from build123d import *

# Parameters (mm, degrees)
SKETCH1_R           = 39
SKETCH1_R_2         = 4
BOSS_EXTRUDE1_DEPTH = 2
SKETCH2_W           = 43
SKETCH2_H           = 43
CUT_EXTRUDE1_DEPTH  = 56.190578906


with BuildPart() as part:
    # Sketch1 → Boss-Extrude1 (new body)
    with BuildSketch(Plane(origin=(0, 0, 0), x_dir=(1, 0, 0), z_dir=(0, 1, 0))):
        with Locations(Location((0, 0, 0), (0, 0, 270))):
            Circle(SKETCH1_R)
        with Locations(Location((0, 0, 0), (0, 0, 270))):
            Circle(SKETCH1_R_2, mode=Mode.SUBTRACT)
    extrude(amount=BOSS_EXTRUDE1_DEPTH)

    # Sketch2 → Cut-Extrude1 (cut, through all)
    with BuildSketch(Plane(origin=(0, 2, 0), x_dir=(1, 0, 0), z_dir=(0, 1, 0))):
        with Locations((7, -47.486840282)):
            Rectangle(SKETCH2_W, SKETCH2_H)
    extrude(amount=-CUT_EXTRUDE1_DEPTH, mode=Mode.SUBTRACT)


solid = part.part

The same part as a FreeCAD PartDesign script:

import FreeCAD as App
import Part
import Sketcher

V = App.Vector
Q = App.Units.Quantity

doc = App.newDocument("Part")
body = doc.addObject("PartDesign::Body", "Body")

sketch1 = doc.addObject("Sketcher::SketchObject", "Sketch")
body.addObject(sketch1)
sketch1.AttachmentSupport = (doc.XZ_Plane, [""])
sketch1.MapMode = "FlatFace"
sketch1.addGeometry(Part.Circle(V(0, 0, 0), V(0, 0, 1), 39), False)
sketch1.addGeometry(Part.Circle(V(0, 0, 0), V(0, 0, 1), 4), False)
sketch1.addConstraint(Sketcher.Constraint("Coincident", 0, 3, -1, 1))
sketch1.addConstraint(Sketcher.Constraint("Coincident", 1, 3, -1, 1))
sketch1.addConstraint(Sketcher.Constraint("Diameter", 0, Q("78 mm")))
sketch1.addConstraint(Sketcher.Constraint("Diameter", 1, Q("8 mm")))
pad1 = doc.addObject("PartDesign::Pad", "Pad")
body.addObject(pad1)
pad1.Profile = sketch1
pad1.Length = 2
pad1.Reversed = True

sketch2 = doc.addObject("Sketcher::SketchObject", "Sketch001")
body.addObject(sketch2)
sketch2.AttachmentSupport = (doc.XZ_Plane, [""])
sketch2.MapMode = "FlatFace"
sketch2.AttachmentOffset = App.Placement(V(0, 0, -2), App.Rotation())
sketch2.addGeometry(Part.LineSegment(V(-14, 26, 0), V(-14, 69, 0)), False)
sketch2.addGeometry(Part.LineSegment(V(-14, 69, 0), V(28, 69, 0)), False)
sketch2.addGeometry(Part.LineSegment(V(28, 69, 0), V(28, 26, 0)), False)
sketch2.addGeometry(Part.LineSegment(V(28, 26, 0), V(-14, 26, 0)), False)
sketch2.addConstraint(Sketcher.Constraint("Coincident", 0, 2, 1, 1))
sketch2.addConstraint(Sketcher.Constraint("Coincident", 1, 2, 2, 1))
sketch2.addConstraint(Sketcher.Constraint("Coincident", 2, 2, 3, 1))
sketch2.addConstraint(Sketcher.Constraint("Coincident", 3, 2, 0, 1))
sketch2.addConstraint(Sketcher.Constraint("Vertical", 0))
sketch2.addConstraint(Sketcher.Constraint("Horizontal", 1))
sketch2.addConstraint(Sketcher.Constraint("Vertical", 2))
sketch2.addConstraint(Sketcher.Constraint("Horizontal", 3))
sketch2.addConstraint(Sketcher.Constraint("Equal", 3, 0))
sketch2.addConstraint(Sketcher.Constraint("DistanceX", 1, 1, 1, 2, Q("43 mm")))
sketch2.addConstraint(Sketcher.Constraint("DistanceX", 0, 2, -1, 1, Q("14.5 mm")))
sketch2.addConstraint(Sketcher.Constraint("DistanceY", -1, 1, 0, 2, Q("68.98684 mm")))
pocket1 = doc.addObject("PartDesign::Pocket", "Pocket")
body.addObject(pocket1)
pocket1.Profile = sketch2
pocket1.Type = "ThroughAll"
pocket1.Reversed = True

doc.recompute()
